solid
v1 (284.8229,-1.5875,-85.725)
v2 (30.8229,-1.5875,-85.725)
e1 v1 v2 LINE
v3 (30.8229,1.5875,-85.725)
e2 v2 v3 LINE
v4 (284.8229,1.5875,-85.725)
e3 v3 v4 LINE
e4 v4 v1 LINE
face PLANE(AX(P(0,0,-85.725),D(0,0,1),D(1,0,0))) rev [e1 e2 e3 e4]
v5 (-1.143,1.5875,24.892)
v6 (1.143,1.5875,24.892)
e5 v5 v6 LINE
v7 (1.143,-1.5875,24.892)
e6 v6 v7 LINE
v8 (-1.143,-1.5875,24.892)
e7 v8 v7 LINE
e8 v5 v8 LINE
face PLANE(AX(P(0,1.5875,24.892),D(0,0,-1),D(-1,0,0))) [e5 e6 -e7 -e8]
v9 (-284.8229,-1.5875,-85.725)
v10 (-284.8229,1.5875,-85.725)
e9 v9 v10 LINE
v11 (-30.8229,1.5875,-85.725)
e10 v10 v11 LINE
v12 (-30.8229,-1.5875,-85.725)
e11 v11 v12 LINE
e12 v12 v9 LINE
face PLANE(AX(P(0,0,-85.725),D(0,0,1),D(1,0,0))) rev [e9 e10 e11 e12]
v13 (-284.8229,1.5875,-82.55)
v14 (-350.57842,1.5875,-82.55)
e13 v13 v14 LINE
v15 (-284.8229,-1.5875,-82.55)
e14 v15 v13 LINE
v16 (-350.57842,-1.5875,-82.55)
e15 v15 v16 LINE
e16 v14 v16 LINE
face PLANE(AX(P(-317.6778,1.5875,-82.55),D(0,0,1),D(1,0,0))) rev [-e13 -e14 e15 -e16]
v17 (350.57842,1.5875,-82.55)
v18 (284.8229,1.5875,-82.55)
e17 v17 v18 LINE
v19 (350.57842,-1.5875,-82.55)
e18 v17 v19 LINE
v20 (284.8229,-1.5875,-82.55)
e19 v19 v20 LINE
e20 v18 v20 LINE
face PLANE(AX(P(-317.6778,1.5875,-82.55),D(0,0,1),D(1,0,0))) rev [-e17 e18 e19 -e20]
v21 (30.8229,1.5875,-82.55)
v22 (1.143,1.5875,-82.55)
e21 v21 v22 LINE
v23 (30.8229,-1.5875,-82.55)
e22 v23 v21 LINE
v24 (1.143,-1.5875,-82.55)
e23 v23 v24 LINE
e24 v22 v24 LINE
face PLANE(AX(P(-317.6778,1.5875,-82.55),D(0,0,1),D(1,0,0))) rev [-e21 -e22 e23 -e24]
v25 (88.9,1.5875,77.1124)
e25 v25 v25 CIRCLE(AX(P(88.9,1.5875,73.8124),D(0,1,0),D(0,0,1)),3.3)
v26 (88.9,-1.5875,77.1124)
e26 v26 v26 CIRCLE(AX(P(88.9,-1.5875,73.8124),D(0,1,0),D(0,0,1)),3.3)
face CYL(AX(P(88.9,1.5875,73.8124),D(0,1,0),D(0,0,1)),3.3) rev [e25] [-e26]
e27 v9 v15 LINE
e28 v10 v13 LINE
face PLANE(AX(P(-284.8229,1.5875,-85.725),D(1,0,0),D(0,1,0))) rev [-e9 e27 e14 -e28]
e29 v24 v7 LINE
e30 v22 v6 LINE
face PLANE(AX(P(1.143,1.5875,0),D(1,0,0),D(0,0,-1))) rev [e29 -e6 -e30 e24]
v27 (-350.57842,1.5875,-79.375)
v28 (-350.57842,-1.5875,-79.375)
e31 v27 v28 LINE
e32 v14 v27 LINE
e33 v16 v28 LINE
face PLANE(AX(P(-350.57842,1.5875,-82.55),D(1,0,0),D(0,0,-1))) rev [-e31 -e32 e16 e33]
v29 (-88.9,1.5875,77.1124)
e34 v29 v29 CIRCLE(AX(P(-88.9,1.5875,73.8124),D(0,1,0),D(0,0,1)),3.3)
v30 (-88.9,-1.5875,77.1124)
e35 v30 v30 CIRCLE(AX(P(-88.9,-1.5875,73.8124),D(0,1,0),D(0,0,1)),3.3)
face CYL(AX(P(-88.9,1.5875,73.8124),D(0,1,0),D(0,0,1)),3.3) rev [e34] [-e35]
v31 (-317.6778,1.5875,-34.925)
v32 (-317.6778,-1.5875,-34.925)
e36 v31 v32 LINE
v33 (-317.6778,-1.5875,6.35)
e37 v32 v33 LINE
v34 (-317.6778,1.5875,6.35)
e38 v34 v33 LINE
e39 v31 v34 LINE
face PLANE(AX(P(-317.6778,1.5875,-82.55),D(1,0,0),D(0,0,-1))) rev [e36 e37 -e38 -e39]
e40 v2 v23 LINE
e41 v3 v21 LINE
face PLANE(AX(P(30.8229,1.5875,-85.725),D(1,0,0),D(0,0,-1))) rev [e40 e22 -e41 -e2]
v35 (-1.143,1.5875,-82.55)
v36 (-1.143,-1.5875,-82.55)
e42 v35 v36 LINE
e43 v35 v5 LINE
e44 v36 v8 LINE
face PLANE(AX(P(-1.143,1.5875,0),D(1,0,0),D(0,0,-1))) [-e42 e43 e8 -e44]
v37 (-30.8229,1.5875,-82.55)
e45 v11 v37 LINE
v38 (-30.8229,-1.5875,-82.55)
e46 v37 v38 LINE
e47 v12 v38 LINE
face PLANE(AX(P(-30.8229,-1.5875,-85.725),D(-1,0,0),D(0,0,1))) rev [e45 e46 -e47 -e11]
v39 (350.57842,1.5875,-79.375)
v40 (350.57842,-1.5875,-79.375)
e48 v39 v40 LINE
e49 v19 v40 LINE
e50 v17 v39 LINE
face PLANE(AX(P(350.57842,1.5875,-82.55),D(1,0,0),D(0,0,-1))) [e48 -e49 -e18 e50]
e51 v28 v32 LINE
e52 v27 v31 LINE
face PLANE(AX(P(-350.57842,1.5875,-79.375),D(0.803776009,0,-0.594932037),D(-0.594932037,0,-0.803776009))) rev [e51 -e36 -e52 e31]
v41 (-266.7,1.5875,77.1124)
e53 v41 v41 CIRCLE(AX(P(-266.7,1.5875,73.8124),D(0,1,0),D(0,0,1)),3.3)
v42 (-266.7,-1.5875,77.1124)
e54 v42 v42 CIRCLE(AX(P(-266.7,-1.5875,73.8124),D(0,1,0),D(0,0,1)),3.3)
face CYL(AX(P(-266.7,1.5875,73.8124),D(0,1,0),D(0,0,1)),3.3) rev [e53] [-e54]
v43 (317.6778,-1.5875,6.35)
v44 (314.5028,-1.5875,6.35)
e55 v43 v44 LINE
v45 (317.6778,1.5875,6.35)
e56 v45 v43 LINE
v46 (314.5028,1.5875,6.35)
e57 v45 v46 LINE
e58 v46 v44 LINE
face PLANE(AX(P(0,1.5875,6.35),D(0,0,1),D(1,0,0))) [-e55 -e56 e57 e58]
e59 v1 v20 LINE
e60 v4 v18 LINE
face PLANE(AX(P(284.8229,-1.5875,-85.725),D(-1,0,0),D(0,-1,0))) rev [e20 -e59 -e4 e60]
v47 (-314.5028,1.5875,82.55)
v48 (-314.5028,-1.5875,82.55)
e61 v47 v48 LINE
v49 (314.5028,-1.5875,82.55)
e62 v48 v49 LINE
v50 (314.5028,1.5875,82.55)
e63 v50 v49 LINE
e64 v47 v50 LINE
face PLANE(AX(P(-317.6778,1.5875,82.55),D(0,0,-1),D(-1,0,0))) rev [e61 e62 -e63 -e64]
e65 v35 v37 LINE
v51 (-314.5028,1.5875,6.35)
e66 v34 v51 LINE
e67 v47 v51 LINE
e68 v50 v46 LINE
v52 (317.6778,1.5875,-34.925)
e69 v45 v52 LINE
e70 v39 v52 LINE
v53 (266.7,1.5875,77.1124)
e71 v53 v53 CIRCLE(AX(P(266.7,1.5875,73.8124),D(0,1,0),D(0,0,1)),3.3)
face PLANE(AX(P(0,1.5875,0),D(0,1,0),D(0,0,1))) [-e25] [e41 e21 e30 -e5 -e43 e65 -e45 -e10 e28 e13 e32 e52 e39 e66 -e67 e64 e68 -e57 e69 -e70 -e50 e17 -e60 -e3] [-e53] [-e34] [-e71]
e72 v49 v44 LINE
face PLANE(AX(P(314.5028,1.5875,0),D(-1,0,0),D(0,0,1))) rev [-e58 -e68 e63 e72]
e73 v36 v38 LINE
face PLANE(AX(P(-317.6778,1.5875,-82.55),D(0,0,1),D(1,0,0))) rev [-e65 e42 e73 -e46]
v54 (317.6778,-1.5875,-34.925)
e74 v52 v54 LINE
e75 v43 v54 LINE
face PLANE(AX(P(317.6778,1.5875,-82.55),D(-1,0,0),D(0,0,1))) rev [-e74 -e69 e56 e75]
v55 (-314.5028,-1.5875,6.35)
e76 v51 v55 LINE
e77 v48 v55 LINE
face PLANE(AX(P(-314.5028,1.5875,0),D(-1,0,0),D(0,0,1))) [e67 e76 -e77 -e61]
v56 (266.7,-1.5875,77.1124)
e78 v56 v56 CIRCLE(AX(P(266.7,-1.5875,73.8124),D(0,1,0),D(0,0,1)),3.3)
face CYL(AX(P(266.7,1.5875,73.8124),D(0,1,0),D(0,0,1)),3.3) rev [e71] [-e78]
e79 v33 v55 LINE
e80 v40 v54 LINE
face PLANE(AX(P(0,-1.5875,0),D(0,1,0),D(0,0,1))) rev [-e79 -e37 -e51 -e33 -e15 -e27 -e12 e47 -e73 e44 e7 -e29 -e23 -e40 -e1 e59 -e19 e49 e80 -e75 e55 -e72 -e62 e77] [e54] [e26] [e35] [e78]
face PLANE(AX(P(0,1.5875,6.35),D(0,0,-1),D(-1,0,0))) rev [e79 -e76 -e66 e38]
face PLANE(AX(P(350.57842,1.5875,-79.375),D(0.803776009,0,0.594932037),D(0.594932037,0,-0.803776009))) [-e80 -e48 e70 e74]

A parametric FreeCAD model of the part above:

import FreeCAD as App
import Part
import Sketcher
Q = App.Units.Quantity


def add_polygon(sketch, points):
    """Adds a closed chain of lines whose ends are joined by coincident constraints."""
    first, n = sketch.GeometryCount, len(points)
    for a, b in zip(points, points[1:] + points[:1]):
        sketch.addGeometry(Part.LineSegment(App.Vector(*a, 0), App.Vector(*b, 0)), False)
    for i in range(n):
        sketch.addConstraint(Sketcher.Constraint("Coincident", first + i, 2, first + (i + 1) % n, 1))

doc = App.newDocument("Part")
params = doc.addObject("Spreadsheet::Sheet", "Params")
for row, (alias, value) in enumerate([
    ("sketch1_height", "6.5 in"),
    ("sketch1_width", "25.014 in"),
    ("pad1_length", "0.125 in"),
    ("sketch2_width", "10 in"),
    ("sketch2_height", "0.125 in"),
    ("pad2_length", "0.125 in"),
    ("sketch3_height", "0.125 in"),
    ("sketch3_height2", "1.875 in"),
    ("pad3_length", "0.125 in"),
    ("sketch4_height", "3 in"),
    ("sketch4_width", "0.09 in"),
    ("sketch4_height2", "4.23 in"),
    ("sketch4_width2", "0.125 in"),
    ("hole_diameter", "6.6 mm"),
    ("linearpattern_pitch", "7 in"),
], start=1):
    params.set(f"A{row}", alias)
    params.set(f"B{row}", "=" + value)
    params.setAlias(f"B{row}", alias)

body = doc.addObject("PartDesign::Body", "Body")

# Sketch on XZ plane
sketch1 = body.newObject("Sketcher::SketchObject", "Sketch")
sketch1.AttachmentSupport = (doc.getObject("XZ_Plane"), [""])
sketch1.MapMode = "FlatFace"
add_polygon(sketch1, [(-318, -83), (-318, 83), (318, 83), (318, -83)])  # lines 0-3
sketch1.addConstraint(Sketcher.Constraint("Vertical", 0))
sketch1.addConstraint(Sketcher.Constraint("Horizontal", 1))
sketch1.addConstraint(Sketcher.Constraint("Vertical", 2))
sketch1.addConstraint(Sketcher.Constraint("Horizontal", 3))
sketch1.addConstraint(Sketcher.Constraint("Symmetric", 0, 2, 2, 2, -1, 1))
sketch1.addConstraint(Sketcher.Constraint("DistanceY", 0, 1, 0, 2, Q("6.5 in")))
sketch1.addConstraint(Sketcher.Constraint("DistanceX", 1, 1, 1, 2, Q("25.014 in")))
sketch1.setExpression("Constraints[9]", "Params.sketch1_height")
sketch1.setExpression("Constraints[10]", "Params.sketch1_width")
pad1 = body.newObject("PartDesign::Pad", "Pad")
pad1.Profile = sketch1
pad1.setExpression("Length", "Params.pad1_length")
pad1.Midplane = True

# Sketch on XY plane
sketch2 = body.newObject("Sketcher::SketchObject", "Sketch001")
sketch2.AttachmentSupport = (doc.getObject("XY_Plane"), [""])
sketch2.MapMode = "FlatFace"
sketch2.AttachmentOffset = App.Placement(App.Vector(0, 0, -3.25 * 25.4), App.Rotation())
add_polygon(sketch2, [(284.8, 1.6), (284.8, -1.6), (30.8, -1.6), (30.8, 1.6)])  # lines 0-3
add_polygon(sketch2, [(-30.8, 1.6), (-30.8, -1.6), (-284.8, -1.6), (-284.8, 1.6)])  # lines 4-7
sketch2.addConstraint(Sketcher.Constraint("Vertical", 0))
sketch2.addConstraint(Sketcher.Constraint("Horizontal", 1))
sketch2.addConstraint(Sketcher.Constraint("Vertical", 2))
sketch2.addConstraint(Sketcher.Constraint("Horizontal", 3))
sketch2.addConstraint(Sketcher.Constraint("Vertical", 4))
sketch2.addConstraint(Sketcher.Constraint("Horizontal", 5))
sketch2.addConstraint(Sketcher.Constraint("Vertical", 6))
sketch2.addConstraint(Sketcher.Constraint("Horizontal", 7))
sketch2.addConstraint(Sketcher.Constraint("Symmetric", 2, 2, 4, 2, -1, 1))
sketch2.addConstraint(Sketcher.Constraint("Symmetric", 0, 2, 6, 2, -1, 1))
sketch2.addConstraint(Sketcher.Constraint("Horizontal", 1, 2, 4, 2))
sketch2.addConstraint(Sketcher.Constraint("DistanceX", 1, 2, 1, 1, Q("10 in")))
sketch2.addConstraint(Sketcher.Constraint("DistanceY", 0, 2, 0, 1, Q("0.125 in")))
sketch2.addConstraint(Sketcher.Constraint("DistanceX", 4, 2, 1, 2, Q("2.427 in")))
sketch2.setExpression("Constraints[19]", "Params.sketch2_width")
sketch2.setExpression("Constraints[20]", "Params.sketch2_height")
pad2 = body.newObject("PartDesign::Pad", "Pad001")
pad2.Profile = sketch2
pad2.setExpression("Length", "Params.pad2_length")
pad2.Reversed = True

# Sketch on XZ plane
sketch3 = body.newObject("Sketcher::SketchObject", "Sketch002")
sketch3.AttachmentSupport = (doc.getObject("XZ_Plane"), [""])
sketch3.MapMode = "FlatFace"
sketch3.AttachmentOffset = App.Placement(App.Vector(0, 0, 0.0625 * 25.4), App.Rotation())
add_polygon(sketch3, [(317.7, -82.5), (350.6, -82.5), (350.6, -79.4), (317.7, -34.9)])  # lines 0-3
sketch3.addConstraint(Sketcher.Constraint("Horizontal", 0))
sketch3.addConstraint(Sketcher.Constraint("Vertical", 1))
sketch3.addConstraint(Sketcher.Constraint("Vertical", 3))
sketch3.addConstraint(Sketcher.Constraint("DistanceY", 1, 1, 1, 2, Q("0.125 in")))
sketch3.addConstraint(Sketcher.Constraint("DistanceY", 3, 2, 3, 1, Q("1.875 in")))
sketch3.addConstraint(Sketcher.Constraint("DistanceY", 0, 2, -1, 1, Q("3.25 in")))
sketch3.addConstraint(Sketcher.Constraint("DistanceX", 0, 1, 0, 2, Q("1.2953 in")))
sketch3.addConstraint(Sketcher.Constraint("DistanceX", -1, 1, 2, 2, Q("12.507 in")))
sketch3.setExpression("Constraints[7]", "Params.sketch3_height")
sketch3.setExpression("Constraints[8]", "Params.sketch3_height2")
pad3 = body.newObject("PartDesign::Pad", "Pad002")
pad3.Profile = sketch3
pad3.setExpression("Length", "Params.pad3_length")
pad3.Reversed = True
doc.recompute()

mirrored = body.newObject("PartDesign::Mirrored", "Mirrored")
mirrored.Originals = [pad3]
mirrored.MirrorPlane = (doc.getObject("YZ_Plane"), [""])
body.Tip = mirrored

# Sketch on XZ plane
sketch4 = body.newObject("Sketcher::SketchObject", "Sketch003")
sketch4.AttachmentSupport = (doc.getObject("XZ_Plane"), [""])
sketch4.MapMode = "FlatFace"
sketch4.AttachmentOffset = App.Placement(App.Vector(0, 0, 0.0625 * 25.4), App.Rotation())
add_polygon(sketch4, [(1.1, -82.5), (1.1, 24.9), (-1.1, 24.9), (-1.1, -82.5)])  # lines 0-3
add_polygon(sketch4, [(-317.7, 82.5), (-317.7, 6.3), (-314.5, 6.3), (-314.5, 82.5)])  # lines 4-7
add_polygon(sketch4, [(314.5, 82.5), (314.5, 6.3), (317.7, 6.3), (317.7, 82.5)])  # lines 8-11
sketch4.addConstraint(Sketcher.Constraint("Vertical", 0))
sketch4.addConstraint(Sketcher.Constraint("Horizontal", 1))
sketch4.addConstraint(Sketcher.Constraint("Vertical", 2))
sketch4.addConstraint(Sketcher.Constraint("Horizontal", 3))
sketch4.addConstraint(Sketcher.Constraint("Vertical", 4))
sketch4.addConstraint(Sketcher.Constraint("Horizontal", 5))
sketch4.addConstraint(Sketcher.Constraint("Vertical", 6))
sketch4.addConstraint(Sketcher.Constraint("Horizontal", 7))
sketch4.addConstraint(Sketcher.Constraint("Vertical", 8))
sketch4.addConstraint(Sketcher.Constraint("Horizontal", 9))
sketch4.addConstraint(Sketcher.Constraint("Vertical", 10))
sketch4.addConstraint(Sketcher.Constraint("Horizontal", 11))
sketch4.addConstraint(Sketcher.Constraint("Symmetric", 5, 2, 8, 2, -2))
sketch4.addConstraint(Sketcher.Constraint("Symmetric", 7, 2, 10, 2, -2))
sketch4.addConstraint(Sketcher.Constraint("DistanceY", 4, 2, 4, 1, Q("3 in")))
sketch4.addConstraint(Sketcher.Constraint("DistanceX", 1, 2, 1, 1, Q("0.09 in")))
sketch4.addConstraint(Sketcher.Constraint("DistanceY", 0, 1, 0, 2, Q("4.23 in")))
sketch4.addConstraint(Sketcher.Constraint("DistanceY", 2, 2, 4, 2, Q("3.5 in")))
sketch4.addConstraint(Sketcher.Constraint("DistanceX", 5, 1, 5, 2, Q("0.125 in")))
sketch4.addConstraint(Sketcher.Constraint("DistanceY", -1, 1, 0, 2, Q("0.98 in")))
sketch4.addConstraint(Sketcher.Constraint("DistanceX", -1, 1, 0, 2, Q("0.045 in")))
sketch4.addConstraint(Sketcher.Constraint("DistanceX", 4, 2, -1, 1, Q("12.507 in")))
sketch4.setExpression("Constraints[26]", "Params.sketch4_height")
sketch4.setExpression("Constraints[27]", "Params.sketch4_width")
sketch4.setExpression("Constraints[28]", "Params.sketch4_height2")
sketch4.setExpression("Constraints[30]", "Params.sketch4_width2")
pocket1 = body.newObject("PartDesign::Pocket", "Pocket")
pocket1.Profile = sketch4
pocket1.Type = "ThroughAll"

# Sketch on XZ plane
sketch5 = body.newObject("Sketcher::SketchObject", "Sketch004")
sketch5.AttachmentSupport = (doc.getObject("XZ_Plane"), [""])
sketch5.MapMode = "FlatFace"
sketch5.AttachmentOffset = App.Placement(App.Vector(0, 0, -0.0625 * 25.4), App.Rotation())
sketch5.addGeometry(Part.Circle(App.Vector(266.7, 73.8, 0), App.Vector(0, 0, 1), 3.3), False)
sketch5.addConstraint(Sketcher.Constraint("DistanceX", -1, 1, 0, 3, Q("10.5 in")))
sketch5.addConstraint(Sketcher.Constraint("Diameter", 0, Q("6.6 mm")))
sketch5.addConstraint(Sketcher.Constraint("DistanceY", -1, 1, 0, 3, Q("2.906 in")))
doc.recompute()
hole = body.newObject("PartDesign::Hole", "Hole")
hole.Profile = sketch5
hole.ThreadType = "None"
hole.setExpression("Diameter", "Params.hole_diameter")
hole.DepthType = "ThroughAll"
hole.Reversed = True
doc.recompute()

linearpattern = body.newObject("PartDesign::LinearPattern", "LinearPattern")
linearpattern.Originals = [hole]
linearpattern.Direction = (doc.getObject("X_Axis"), [""])
linearpattern.Mode = "offset"
linearpattern.setExpression("Offset", "Params.linearpattern_pitch")
linearpattern.Occurrences = 4
linearpattern.Reversed = True
body.Tip = linearpattern

doc.recompute()
